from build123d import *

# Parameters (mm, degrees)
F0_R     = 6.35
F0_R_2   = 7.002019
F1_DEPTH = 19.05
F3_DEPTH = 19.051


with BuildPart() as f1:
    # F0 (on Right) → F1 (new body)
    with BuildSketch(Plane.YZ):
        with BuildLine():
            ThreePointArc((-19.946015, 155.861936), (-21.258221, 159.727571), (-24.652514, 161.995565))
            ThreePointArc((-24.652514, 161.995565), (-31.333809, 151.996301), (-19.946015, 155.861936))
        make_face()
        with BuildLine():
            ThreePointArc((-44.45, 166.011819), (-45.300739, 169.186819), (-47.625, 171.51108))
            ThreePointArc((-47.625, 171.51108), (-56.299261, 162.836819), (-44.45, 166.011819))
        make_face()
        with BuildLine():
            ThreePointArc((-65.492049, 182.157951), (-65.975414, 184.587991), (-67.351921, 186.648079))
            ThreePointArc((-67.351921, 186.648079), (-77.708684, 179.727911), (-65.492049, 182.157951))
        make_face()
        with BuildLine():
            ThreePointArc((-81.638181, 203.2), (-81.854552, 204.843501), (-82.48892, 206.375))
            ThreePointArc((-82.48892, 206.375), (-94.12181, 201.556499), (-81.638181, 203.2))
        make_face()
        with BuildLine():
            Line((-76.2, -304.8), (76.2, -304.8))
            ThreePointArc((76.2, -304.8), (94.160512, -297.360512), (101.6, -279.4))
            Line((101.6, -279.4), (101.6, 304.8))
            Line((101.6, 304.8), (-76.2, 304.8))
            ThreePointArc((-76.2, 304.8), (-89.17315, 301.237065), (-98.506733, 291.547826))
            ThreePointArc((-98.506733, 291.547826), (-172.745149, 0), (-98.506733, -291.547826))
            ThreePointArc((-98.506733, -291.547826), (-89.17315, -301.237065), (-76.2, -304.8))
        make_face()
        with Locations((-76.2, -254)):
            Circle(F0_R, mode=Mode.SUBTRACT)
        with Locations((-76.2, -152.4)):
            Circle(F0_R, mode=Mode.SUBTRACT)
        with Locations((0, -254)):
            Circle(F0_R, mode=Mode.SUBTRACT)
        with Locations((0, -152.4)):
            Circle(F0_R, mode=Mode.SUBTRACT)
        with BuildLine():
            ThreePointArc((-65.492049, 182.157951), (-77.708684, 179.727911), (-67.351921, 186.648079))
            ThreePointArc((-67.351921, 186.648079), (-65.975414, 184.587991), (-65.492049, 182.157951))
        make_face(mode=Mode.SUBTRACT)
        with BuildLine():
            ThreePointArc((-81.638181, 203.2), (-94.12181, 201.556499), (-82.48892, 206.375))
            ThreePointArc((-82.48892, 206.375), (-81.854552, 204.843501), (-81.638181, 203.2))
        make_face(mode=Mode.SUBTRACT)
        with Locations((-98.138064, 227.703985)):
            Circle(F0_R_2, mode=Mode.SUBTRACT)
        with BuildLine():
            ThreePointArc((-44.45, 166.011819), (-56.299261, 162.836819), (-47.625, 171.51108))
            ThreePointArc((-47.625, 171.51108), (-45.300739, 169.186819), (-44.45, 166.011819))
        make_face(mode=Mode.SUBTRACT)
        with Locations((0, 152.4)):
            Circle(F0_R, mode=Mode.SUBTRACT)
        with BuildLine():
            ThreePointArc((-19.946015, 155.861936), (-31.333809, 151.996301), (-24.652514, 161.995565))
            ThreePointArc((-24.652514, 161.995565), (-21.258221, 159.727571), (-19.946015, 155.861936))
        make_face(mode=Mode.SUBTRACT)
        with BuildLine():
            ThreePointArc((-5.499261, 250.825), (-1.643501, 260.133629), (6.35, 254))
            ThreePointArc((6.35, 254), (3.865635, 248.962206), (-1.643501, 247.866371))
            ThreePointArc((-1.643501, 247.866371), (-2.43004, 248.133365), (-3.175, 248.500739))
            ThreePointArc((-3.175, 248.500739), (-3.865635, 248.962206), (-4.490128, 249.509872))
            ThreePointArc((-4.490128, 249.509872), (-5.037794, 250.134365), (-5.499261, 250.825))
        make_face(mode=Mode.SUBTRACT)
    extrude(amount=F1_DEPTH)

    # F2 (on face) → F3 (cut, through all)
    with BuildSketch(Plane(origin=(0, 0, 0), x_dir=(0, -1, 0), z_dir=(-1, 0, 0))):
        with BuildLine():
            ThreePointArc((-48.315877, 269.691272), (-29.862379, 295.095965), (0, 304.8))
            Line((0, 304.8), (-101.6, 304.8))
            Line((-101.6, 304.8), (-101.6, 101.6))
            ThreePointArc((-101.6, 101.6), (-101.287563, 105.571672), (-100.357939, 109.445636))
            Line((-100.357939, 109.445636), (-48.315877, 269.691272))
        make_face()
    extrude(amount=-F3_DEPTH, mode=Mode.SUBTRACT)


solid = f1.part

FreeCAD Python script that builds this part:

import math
import FreeCAD as App
import Part
import Sketcher
from FreeCAD import Vector
Q = App.Units.Quantity

doc = App.newDocument("Part")
body = doc.addObject("PartDesign::Body", "Body")

# Sketch on YZ plane
sketch1 = doc.addObject("Sketcher::SketchObject", "Sketch")
body.addObject(sketch1)
sketch1.AttachmentSupport = (doc.YZ_Plane, [""])
sketch1.MapMode = "FlatFace"
sketch1.addGeometry(Part.LineSegment(Vector(-76.2, -304.8, 0), Vector(76.2, -304.8, 0)), False)
sketch1.addGeometry(Part.ArcOfCircle(Part.Circle(Vector(76.199999, -279.399999, 0), Vector(0, 0, 1), 25.400001), math.radians(-89.999998), math.radians(-0.000002)), False)
sketch1.addGeometry(Part.LineSegment(Vector(101.6, -279.4, 0), Vector(101.6, 304.8, 0)), False)
sketch1.addGeometry(Part.LineSegment(Vector(101.6, 304.8, 0), Vector(-76.2, 304.8, 0)), False)
sketch1.addGeometry(Part.ArcOfCircle(Part.Circle(Vector(-76.200002, 279.400003, 0), Vector(0, 0, 1), 25.399997), math.radians(89.999996), math.radians(151.428125)), False)
sketch1.addGeometry(Part.ArcOfCircle(Part.Circle(Vector(436.854854, 0, 0), Vector(0, 0, 1), 609.600003), math.radians(151.428122), math.radians(208.571878)), False)
sketch1.addGeometry(Part.ArcOfCircle(Part.Circle(Vector(-76.200002, -279.400003, 0), Vector(0, 0, 1), 25.399997), math.radians(-151.428125), math.radians(-89.999996)), False)
sketch1.addGeometry(Part.Circle(Vector(-76.2, -254, 0), Vector(0, 0, 1), 6.35), False)
sketch1.addGeometry(Part.Circle(Vector(-76.2, -152.4, 0), Vector(0, 0, 1), 6.35), False)
sketch1.addGeometry(Part.Circle(Vector(0, -254, 0), Vector(0, 0, 1), 6.35), False)
sketch1.addGeometry(Part.Circle(Vector(0, -152.4, 0), Vector(0, 0, 1), 6.35), False)
sketch1.addGeometry(Part.Circle(Vector(-98.138064, 227.703985, 0), Vector(0, 0, 1), 7.002019), False)
sketch1.addGeometry(Part.ArcOfCircle(Part.Circle(Vector(-87.988176, 203.200001, 0), Vector(0, 0, 1), 6.349995), math.radians(-0.000006), math.radians(30.000017)), False)
sketch1.addGeometry(Part.ArcOfCircle(Part.Circle(Vector(-87.988181, 203.199999, 0), Vector(0, 0, 1), 6.35), math.radians(30.000006), math.radians(360.000005)), False)
sketch1.addGeometry(Part.ArcOfCircle(Part.Circle(Vector(-71.842048, 182.157951, 0), Vector(0, 0, 1), 6.349999), math.radians(-0.000003), math.radians(45.000005)), False)
sketch1.addGeometry(Part.ArcOfCircle(Part.Circle(Vector(-71.842049, 182.157951, 0), Vector(0, 0, 1), 6.35), math.radians(45.000001), math.radians(360.000001)), False)
sketch1.addGeometry(Part.ArcOfCircle(Part.Circle(Vector(-50.800001, 166.011818, 0), Vector(0, 0, 1), 6.350001), math.radians(0.000007), math.radians(59.999996)), False)
sketch1.addGeometry(Part.ArcOfCircle(Part.Circle(Vector(-50.8, 166.011819, 0), Vector(0, 0, 1), 6.35), math.radians(60.000001), math.radians(360.000002)), False)
sketch1.addGeometry(Part.ArcOfCircle(Part.Circle(Vector(-26.296014, 155.861937, 0), Vector(0, 0, 1), 6.349999), math.radians(-0.000005), math.radians(75.000004)), False)
sketch1.addGeometry(Part.ArcOfCircle(Part.Circle(Vector(-26.296015, 155.861936, 0), Vector(0, 0, 1), 6.35), math.radians(74.999999), math.radians(360)), False)
sketch1.addGeometry(Part.Circle(Vector(0, 152.4, 0), Vector(0, 0, 1), 6.35), False)
sketch1.addGeometry(Part.ArcOfCircle(Part.Circle(Vector(-0.000033, 253.999974, 0), Vector(0, 0, 1), 6.349958), math.radians(-150.000055), math.radians(-134.999956)), False)
sketch1.addGeometry(Part.ArcOfCircle(Part.Circle(Vector(0, 254, 0), Vector(0, 0, 1), 6.35), math.radians(-0.000001), math.radians(210.000002)), False)
sketch1.addGeometry(Part.ArcOfCircle(Part.Circle(Vector(0, 254, 0), Vector(0, 0, 1), 6.35), math.radians(-105.000004), math.radians(0.000003)), False)
sketch1.addGeometry(Part.ArcOfCircle(Part.Circle(Vector(-0.000007, 253.999981, 0), Vector(0, 0, 1), 6.34998), math.radians(-120.000036), math.radians(-104.999986)), False)
sketch1.addGeometry(Part.ArcOfCircle(Part.Circle(Vector(-0.000026, 253.999967, 0), Vector(0, 0, 1), 6.349958), math.radians(-135.000044), math.radians(-119.999945)), False)
sketch1.addConstraint(Sketcher.Constraint("Coincident", 0, 2, 1, 1))
sketch1.addConstraint(Sketcher.Constraint("Coincident", 1, 2, 2, 1))
sketch1.addConstraint(Sketcher.Constraint("Coincident", 2, 2, 3, 1))
sketch1.addConstraint(Sketcher.Constraint("Coincident", 3, 2, 4, 1))
sketch1.addConstraint(Sketcher.Constraint("Coincident", 4, 2, 5, 1))
sketch1.addConstraint(Sketcher.Constraint("Coincident", 5, 2, 6, 1))
sketch1.addConstraint(Sketcher.Constraint("Coincident", 6, 2, 0, 1))
sketch1.addConstraint(Sketcher.Constraint("Coincident", 12, 1, 13, 2))
sketch1.addConstraint(Sketcher.Constraint("Coincident", 13, 1, 12, 2))
sketch1.addConstraint(Sketcher.Constraint("Coincident", 14, 1, 15, 2))
sketch1.addConstraint(Sketcher.Constraint("Coincident", 15, 1, 14, 2))
sketch1.addConstraint(Sketcher.Constraint("Coincident", 16, 1, 17, 2))
sketch1.addConstraint(Sketcher.Constraint("Coincident", 17, 1, 16, 2))
sketch1.addConstraint(Sketcher.Constraint("Coincident", 18, 1, 19, 2))
sketch1.addConstraint(Sketcher.Constraint("Coincident", 19, 1, 18, 2))
sketch1.addConstraint(Sketcher.Constraint("Coincident", 21, 1, 22, 2))
sketch1.addConstraint(Sketcher.Constraint("Coincident", 22, 1, 23, 2))
sketch1.addConstraint(Sketcher.Constraint("Coincident", 23, 1, 24, 2))
sketch1.addConstraint(Sketcher.Constraint("Coincident", 24, 1, 25, 2))
sketch1.addConstraint(Sketcher.Constraint("Coincident", 25, 1, 21, 2))
sketch1.addConstraint(Sketcher.Constraint("Horizontal", 0))
sketch1.addConstraint(Sketcher.Constraint("Vertical", 2))
sketch1.addConstraint(Sketcher.Constraint("Horizontal", 3))
sketch1.addConstraint(Sketcher.Constraint("Coincident", 23, 3, 22, 3))
sketch1.addConstraint(Sketcher.Constraint("Coincident", 25, 3, 21, 3))
sketch1.addConstraint(Sketcher.Constraint("PointOnObject", 5, 3, -1))
sketch1.addConstraint(Sketcher.Constraint("PointOnObject", 9, 3, -2))
sketch1.addConstraint(Sketcher.Constraint("PointOnObject", 10, 3, -2))
sketch1.addConstraint(Sketcher.Constraint("PointOnObject", 20, 3, -2))
sketch1.addConstraint(Sketcher.Constraint("PointOnObject", 22, 3, -2))
sketch1.addConstraint(Sketcher.Constraint("Radius", 1, Q("1 in")))
sketch1.addConstraint(Sketcher.Constraint("Radius", 4, Q("0.9999999 in")))
sketch1.addConstraint(Sketcher.Constraint("Radius", 5, Q("24.0000001 in")))
sketch1.addConstraint(Sketcher.Constraint("Radius", 6, Q("0.9999999 in")))
sketch1.addConstraint(Sketcher.Constraint("Diameter", 7, Q("0.5 in")))
sketch1.addConstraint(Sketcher.Constraint("Diameter", 8, Q("0.5 in")))
sketch1.addConstraint(Sketcher.Constraint("Diameter", 9, Q("0.5 in")))
sketch1.addConstraint(Sketcher.Constraint("Diameter", 10, Q("0.5 in")))
sketch1.addConstraint(Sketcher.Constraint("Diameter", 20, Q("0.5 in")))
sketch1.addConstraint(Sketcher.Constraint("DistanceX", 0, 1, 0, 2, Q("6 in")))
sketch1.addConstraint(Sketcher.Constraint("DistanceX", 3, 2, 3, 1, Q("7 in")))
sketch1.addConstraint(Sketcher.Constraint("DistanceY", 2, 1, 2, 2, Q("23 in")))
sketch1.addConstraint(Sketcher.Constraint("Radius", 12, Q("0.2499998 in")))
sketch1.addConstraint(Sketcher.Constraint("Radius", 13, Q("0.25 in")))
sketch1.addConstraint(Sketcher.Constraint("Radius", 14, Q("0.25 in")))
sketch1.addConstraint(Sketcher.Constraint("Radius", 15, Q("0.25 in")))
sketch1.addConstraint(Sketcher.Constraint("Radius", 16, Q("0.25 in")))
sketch1.addConstraint(Sketcher.Constraint("Radius", 17, Q("0.25 in")))
sketch1.addConstraint(Sketcher.Constraint("Radius", 18, Q("0.25 in")))
sketch1.addConstraint(Sketcher.Constraint("Radius", 19, Q("0.25 in")))
sketch1.addConstraint(Sketcher.Constraint("Radius", 22, Q("0.25 in")))
sketch1.addConstraint(Sketcher.Constraint("DistanceX", -1, 1, 1, 3, Q("3 in")))
sketch1.addConstraint(Sketcher.Constraint("DistanceY", 1, 3, -1, 1, Q("11 in")))
sketch1.addConstraint(Sketcher.Constraint("DistanceX", 4, 3, -1, 1, Q("3.0000001 in")))
sketch1.addConstraint(Sketcher.Constraint("DistanceY", -1, 1, 4, 3, Q("11.0000001 in")))
sketch1.addConstraint(Sketcher.Constraint("DistanceX", 7, 3, -1, 1, Q("3 in")))
sketch1.addConstraint(Sketcher.Constraint("DistanceY", 7, 3, -1, 1, Q("10 in")))
sketch1.addConstraint(Sketcher.Constraint("DistanceX", 8, 3, -1, 1, Q("3 in")))
sketch1.addConstraint(Sketcher.Constraint("DistanceY", 8, 3, -1, 1, Q("6 in")))
sketch1.addConstraint(Sketcher.Constraint("DistanceY", 9, 3, -1, 1, Q("10 in")))
sketch1.addConstraint(Sketcher.Constraint("DistanceY", 10, 3, -1, 1, Q("6 in")))
sketch1.addConstraint(Sketcher.Constraint("DistanceY", -1, 1, 12, 3, Q("8 in")))
sketch1.addConstraint(Sketcher.Constraint("DistanceX", 16, 3, -1, 1, Q("2 in")))
sketch1.addConstraint(Sketcher.Constraint("DistanceY", -1, 1, 20, 3, Q("6 in")))
sketch1.addConstraint(Sketcher.Constraint("DistanceY", -1, 1, 22, 3, Q("10 in")))
sketch1.addConstraint(Sketcher.Constraint("DistanceX", -1, 1, 0, 2, Q("3 in")))
sketch1.addConstraint(Sketcher.Constraint("DistanceY", -1, 1, 12, 1, Q("8 in")))
sketch1.addConstraint(Sketcher.Constraint("DistanceY", -1, 1, 22, 1, Q("10 in")))
sketch1.addConstraint(Sketcher.Constraint("DistanceX", 4, 3, 24, 3, Q("2.9999998 in")))
sketch1.addConstraint(Sketcher.Constraint("DistanceY", -1, 1, 13, 1, Q("8.125 in")))
sketch1.addConstraint(Sketcher.Constraint("DistanceX", 17, 1, -1, 1, Q("1.875 in")))
sketch1.addConstraint(Sketcher.Constraint("DistanceY", -1, 1, 21, 1, Q("9.875 in")))
sketch1.addConstraint(Sketcher.Constraint("DistanceX", 24, 1, -1, 1, Q("0.125 in")))
sketch1.addConstraint(Sketcher.Constraint("Radius", 24, 6.34998))
sketch1.addConstraint(Sketcher.Constraint("Diameter", 11, 14.004038))
sketch1.addConstraint(Sketcher.Constraint("Radius", 21, 6.349958))
sketch1.addConstraint(Sketcher.Constraint("DistanceX", 12, 3, 21, 3, Q("3.4641001 in")))
sketch1.addConstraint(Sketcher.Constraint("DistanceX", 23, 1, -1, 1, 1.643501))
sketch1.addConstraint(Sketcher.Constraint("DistanceX", 13, 1, 15, 1, 15.136999))
sketch1.addConstraint(Sketcher.Constraint("DistanceY", 17, 1, 15, 1, 15.136999))
sketch1.addConstraint(Sketcher.Constraint("DistanceX", 18, 3, 19, 1, 1.6435))
sketch1.addConstraint(Sketcher.Constraint("DistanceY", 23, 1, 25, 1, 1.643501))
sketch1.addConstraint(Sketcher.Constraint("DistanceY", -1, 1, 14, 3, 182.157951))
sketch1.addConstraint(Sketcher.Constraint("DistanceX", 15, 3, -1, 1, 71.842049))
sketch1.addConstraint(Sketcher.Constraint("DistanceY", -1, 1, 14, 1, 182.157951))
sketch1.addConstraint(Sketcher.Constraint("DistanceY", -1, 1, 16, 1, 166.011819))
sketch1.addConstraint(Sketcher.Constraint("DistanceY", 18, 3, 16, 3, 10.149882))
sketch1.addConstraint(Sketcher.Constraint("DistanceX", 4, 2, 4, 3, 22.306731))
sketch1.addConstraint(Sketcher.Constraint("DistanceX", 4, 2, 11, 3, 0.368669))
sketch1.addConstraint(Sketcher.Constraint("DistanceY", 11, 3, 4, 2, 63.843841))
sketch1.addConstraint(Sketcher.Constraint("DistanceX", 5, 2, 6, 3, 22.306731))
sketch1.addConstraint(Sketcher.Constraint("DistanceY", 18, 1, 19, 1, 6.133629))
sketch1.addConstraint(Sketcher.Constraint("DistanceX", 18, 3, -1, 1, 26.296014))
pad1 = doc.addObject("PartDesign::Pad", "Pad")
body.addObject(pad1)
pad1.Profile = sketch1
pad1.Length = Q("0.75 in")

# Sketch on YZ plane
sketch2 = doc.addObject("Sketcher::SketchObject", "Sketch001")
body.addObject(sketch2)
sketch2.AttachmentSupport = (doc.YZ_Plane, [""])
sketch2.MapMode = "FlatFace"
sketch2.addGeometry(Part.ArcOfCircle(Part.Circle(Vector(0.000001, 254.000001, 0), Vector(0, 0, 1), 50.799999), math.radians(17.991945), math.radians(90.000001)), False)
sketch2.addGeometry(Part.LineSegment(Vector(0, 304.8, 0), Vector(101.6, 304.8, 0)), False)
sketch2.addGeometry(Part.LineSegment(Vector(101.6, 304.8, 0), Vector(101.6, 101.6, 0)), False)
sketch2.addGeometry(Part.ArcOfCircle(Part.Circle(Vector(76.199977, 101.599998, 0), Vector(0, 0, 1), 25.400023), math.radians(0.000005), math.radians(17.991935)), False)
sketch2.addGeometry(Part.LineSegment(Vector(100.357939, 109.445636, 0), Vector(48.315877, 269.691272, 0)), False)
sketch2.addConstraint(Sketcher.Constraint("Tangent", 0, 2, 1, 1))
sketch2.addConstraint(Sketcher.Constraint("Coincident", 1, 2, 2, 1))
sketch2.addConstraint(Sketcher.Constraint("Tangent", 2, 2, 3, 1))
sketch2.addConstraint(Sketcher.Constraint("Tangent", 3, 2, 4, 1))
sketch2.addConstraint(Sketcher.Constraint("Tangent", 4, 2, 0, 1))
sketch2.addConstraint(Sketcher.Constraint("Horizontal", 1))
sketch2.addConstraint(Sketcher.Constraint("Vertical", 2))
sketch2.addConstraint(Sketcher.Constraint("PointOnObject", 0, 3, -2))
sketch2.addConstraint(Sketcher.Constraint("Radius", 0, Q("2 in")))
sketch2.addConstraint(Sketcher.Constraint("DistanceX", 1, 1, 1, 2, Q("4 in")))
sketch2.addConstraint(Sketcher.Constraint("DistanceY", 2, 2, 2, 1, Q("8 in")))
sketch2.addConstraint(Sketcher.Constraint("DistanceY", -1, 1, 0, 3, Q("10 in")))
sketch2.addConstraint(Sketcher.Constraint("DistanceX", -1, 1, 3, 2, Q("3.9511 in")))
pocket1 = doc.addObject("PartDesign::Pocket", "Pocket")
body.addObject(pocket1)
pocket1.Profile = sketch2
pocket1.Type = "ThroughAll"
pocket1.Reversed = True

doc.recompute()
